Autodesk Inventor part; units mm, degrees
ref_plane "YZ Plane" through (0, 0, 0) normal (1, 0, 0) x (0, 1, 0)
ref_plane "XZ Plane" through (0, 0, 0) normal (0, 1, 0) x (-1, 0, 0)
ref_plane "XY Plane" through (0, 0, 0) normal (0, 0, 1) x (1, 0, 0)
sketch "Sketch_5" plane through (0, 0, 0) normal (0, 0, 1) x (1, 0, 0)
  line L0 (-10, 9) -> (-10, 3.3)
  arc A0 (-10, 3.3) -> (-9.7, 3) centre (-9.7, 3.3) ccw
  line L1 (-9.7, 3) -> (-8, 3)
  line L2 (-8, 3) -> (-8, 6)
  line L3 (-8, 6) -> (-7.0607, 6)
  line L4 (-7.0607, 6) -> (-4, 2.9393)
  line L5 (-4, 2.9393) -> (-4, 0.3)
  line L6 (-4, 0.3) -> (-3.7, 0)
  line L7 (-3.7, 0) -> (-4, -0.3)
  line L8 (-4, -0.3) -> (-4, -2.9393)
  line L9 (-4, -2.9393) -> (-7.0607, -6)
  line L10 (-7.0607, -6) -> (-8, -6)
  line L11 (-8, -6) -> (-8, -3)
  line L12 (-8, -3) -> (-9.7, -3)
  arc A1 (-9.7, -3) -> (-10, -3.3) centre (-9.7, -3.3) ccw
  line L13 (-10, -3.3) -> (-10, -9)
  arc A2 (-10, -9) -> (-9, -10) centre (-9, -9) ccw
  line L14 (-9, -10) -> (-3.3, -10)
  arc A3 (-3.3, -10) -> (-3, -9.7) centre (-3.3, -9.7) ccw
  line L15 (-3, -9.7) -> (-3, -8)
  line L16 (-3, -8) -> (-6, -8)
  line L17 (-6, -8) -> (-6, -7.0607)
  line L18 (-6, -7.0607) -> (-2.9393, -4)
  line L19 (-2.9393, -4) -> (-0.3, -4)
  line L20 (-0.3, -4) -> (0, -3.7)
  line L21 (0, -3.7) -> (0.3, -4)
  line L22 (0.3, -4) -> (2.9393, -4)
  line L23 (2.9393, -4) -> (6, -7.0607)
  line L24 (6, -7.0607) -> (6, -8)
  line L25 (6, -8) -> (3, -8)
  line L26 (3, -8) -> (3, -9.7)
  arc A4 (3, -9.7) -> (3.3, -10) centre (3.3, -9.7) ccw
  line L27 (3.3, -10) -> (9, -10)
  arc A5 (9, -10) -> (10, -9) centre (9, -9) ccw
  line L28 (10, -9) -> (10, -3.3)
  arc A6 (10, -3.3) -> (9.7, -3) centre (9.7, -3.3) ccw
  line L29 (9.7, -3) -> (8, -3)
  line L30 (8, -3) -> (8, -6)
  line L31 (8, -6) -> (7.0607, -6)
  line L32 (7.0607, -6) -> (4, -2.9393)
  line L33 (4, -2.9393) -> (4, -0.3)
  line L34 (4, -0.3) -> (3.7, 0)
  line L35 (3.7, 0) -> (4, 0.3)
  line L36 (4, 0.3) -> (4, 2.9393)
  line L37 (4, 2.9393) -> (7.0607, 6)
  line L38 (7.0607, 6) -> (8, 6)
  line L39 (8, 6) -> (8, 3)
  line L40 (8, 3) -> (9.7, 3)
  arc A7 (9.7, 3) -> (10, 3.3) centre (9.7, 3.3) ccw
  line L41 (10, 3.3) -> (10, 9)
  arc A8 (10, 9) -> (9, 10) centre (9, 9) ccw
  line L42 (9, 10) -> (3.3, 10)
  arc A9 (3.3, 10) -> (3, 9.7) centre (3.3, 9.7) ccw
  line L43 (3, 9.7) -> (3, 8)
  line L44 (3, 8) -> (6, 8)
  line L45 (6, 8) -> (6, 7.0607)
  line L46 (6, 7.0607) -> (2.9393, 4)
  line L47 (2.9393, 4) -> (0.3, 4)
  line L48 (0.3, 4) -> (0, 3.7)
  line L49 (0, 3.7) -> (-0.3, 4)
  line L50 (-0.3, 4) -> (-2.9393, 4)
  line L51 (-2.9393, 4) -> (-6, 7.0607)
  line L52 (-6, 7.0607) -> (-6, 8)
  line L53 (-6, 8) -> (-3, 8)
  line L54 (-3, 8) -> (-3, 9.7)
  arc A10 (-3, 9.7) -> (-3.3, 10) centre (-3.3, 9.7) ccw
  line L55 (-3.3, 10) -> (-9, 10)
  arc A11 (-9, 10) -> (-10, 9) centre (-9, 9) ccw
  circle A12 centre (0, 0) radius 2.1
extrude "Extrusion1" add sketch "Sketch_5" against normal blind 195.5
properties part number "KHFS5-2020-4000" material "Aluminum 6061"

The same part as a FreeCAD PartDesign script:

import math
import FreeCAD as App
import Part
import Sketcher

V = App.Vector

doc = App.newDocument("Part")
body = doc.addObject("PartDesign::Body", "Body")

# Sketch on XY plane
sketch1 = body.newObject("Sketcher::SketchObject", "Sketch")
sketch1.AttachmentSupport = (doc.getObject("XY_Plane"), [""])
sketch1.MapMode = "FlatFace"
sketch1.addGeometry([
    Part.ArcOfCircle(Part.Circle(V(-9, 9, 0), V(0, 0, 1), 1), math.radians(90), math.radians(180)),  # 0
    Part.LineSegment(V(-10, 9, 0), V(-10, 3.3, 0)),  # 1
    Part.ArcOfCircle(Part.Circle(V(-9.7, 3.3, 0), V(0, 0, 1), 0.3), math.radians(180), math.radians(270)),  # 2
    Part.LineSegment(V(-9.7, 3, 0), V(-8, 3, 0)),  # 3
    Part.LineSegment(V(-8, 3, 0), V(-8, 6, 0)),  # 4
    Part.LineSegment(V(-8, 6, 0), V(-7.06, 6, 0)),  # 5
    Part.LineSegment(V(-7.06, 6, 0), V(-4, 2.94, 0)),  # 6
    Part.LineSegment(V(-4, 2.94, 0), V(-4, 0.3, 0)),  # 7
    Part.LineSegment(V(-4, 0.3, 0), V(-3.7, 0, 0)),  # 8
    Part.LineSegment(V(-3.7, 0, 0), V(-4, -0.3, 0)),  # 9
    Part.LineSegment(V(-4, -0.3, 0), V(-4, -2.94, 0)),  # 10
    Part.LineSegment(V(-4, -2.94, 0), V(-7.06, -6, 0)),  # 11
    Part.LineSegment(V(-7.06, -6, 0), V(-8, -6, 0)),  # 12
    Part.LineSegment(V(-8, -6, 0), V(-8, -3, 0)),  # 13
    Part.LineSegment(V(-8, -3, 0), V(-9.7, -3, 0)),  # 14
    Part.ArcOfCircle(Part.Circle(V(-9.7, -3.3, 0), V(0, 0, 1), 0.3), math.radians(90), math.radians(180)),  # 15
    Part.LineSegment(V(-10, -3.3, 0), V(-10, -9, 0)),  # 16
    Part.ArcOfCircle(Part.Circle(V(-9, -9, 0), V(0, 0, 1), 1), math.radians(180), math.radians(270)),  # 17
    Part.LineSegment(V(-9, -10, 0), V(-3.3, -10, 0)),  # 18
    Part.ArcOfCircle(Part.Circle(V(-3.3, -9.7, 0), V(0, 0, 1), 0.3), math.radians(-90), math.radians(0)),  # 19
    Part.LineSegment(V(-3, -9.7, 0), V(-3, -8, 0)),  # 20
    Part.LineSegment(V(-3, -8, 0), V(-6, -8, 0)),  # 21
    Part.LineSegment(V(-6, -8, 0), V(-6, -7.06, 0)),  # 22
    Part.LineSegment(V(-6, -7.06, 0), V(-2.94, -4, 0)),  # 23
    Part.LineSegment(V(-2.94, -4, 0), V(-0.3, -4, 0)),  # 24
    Part.LineSegment(V(-0.3, -4, 0), V(0, -3.7, 0)),  # 25
    Part.LineSegment(V(0, -3.7, 0), V(0.3, -4, 0)),  # 26
    Part.LineSegment(V(0.3, -4, 0), V(2.94, -4, 0)),  # 27
    Part.LineSegment(V(2.94, -4, 0), V(6, -7.06, 0)),  # 28
    Part.LineSegment(V(6, -7.06, 0), V(6, -8, 0)),  # 29
    Part.LineSegment(V(6, -8, 0), V(3, -8, 0)),  # 30
    Part.LineSegment(V(3, -8, 0), V(3, -9.7, 0)),  # 31
    Part.ArcOfCircle(Part.Circle(V(3.3, -9.7, 0), V(0, 0, 1), 0.3), math.radians(180), math.radians(270)),  # 32
    Part.LineSegment(V(3.3, -10, 0), V(9, -10, 0)),  # 33
    Part.ArcOfCircle(Part.Circle(V(9, -9, 0), V(0, 0, 1), 1), math.radians(-90), math.radians(0)),  # 34
    Part.LineSegment(V(10, -9, 0), V(10, -3.3, 0)),  # 35
    Part.ArcOfCircle(Part.Circle(V(9.7, -3.3, 0), V(0, 0, 1), 0.3), math.radians(0), math.radians(90)),  # 36
    Part.LineSegment(V(9.7, -3, 0), V(8, -3, 0)),  # 37
    Part.LineSegment(V(8, -3, 0), V(8, -6, 0)),  # 38
    Part.LineSegment(V(8, -6, 0), V(7.06, -6, 0)),  # 39
    Part.LineSegment(V(7.06, -6, 0), V(4, -2.94, 0)),  # 40
    Part.LineSegment(V(4, -2.94, 0), V(4, -0.3, 0)),  # 41
    Part.LineSegment(V(4, -0.3, 0), V(3.7, 0, 0)),  # 42
    Part.LineSegment(V(3.7, 0, 0), V(4, 0.3, 0)),  # 43
    Part.LineSegment(V(4, 0.3, 0), V(4, 2.94, 0)),  # 44
    Part.LineSegment(V(4, 2.94, 0), V(7.06, 6, 0)),  # 45
    Part.LineSegment(V(7.06, 6, 0), V(8, 6, 0)),  # 46
    Part.LineSegment(V(8, 6, 0), V(8, 3, 0)),  # 47
    Part.LineSegment(V(8, 3, 0), V(9.7, 3, 0)),  # 48
    Part.ArcOfCircle(Part.Circle(V(9.7, 3.3, 0), V(0, 0, 1), 0.3), math.radians(-90), math.radians(0)),  # 49
    Part.LineSegment(V(10, 3.3, 0), V(10, 9, 0)),  # 50
    Part.ArcOfCircle(Part.Circle(V(9, 9, 0), V(0, 0, 1), 1), math.radians(0), math.radians(90)),  # 51
    Part.LineSegment(V(9, 10, 0), V(3.3, 10, 0)),  # 52
    Part.ArcOfCircle(Part.Circle(V(3.3, 9.7, 0), V(0, 0, 1), 0.3), math.radians(90), math.radians(180)),  # 53
    Part.LineSegment(V(3, 9.7, 0), V(3, 8, 0)),  # 54
    Part.LineSegment(V(3, 8, 0), V(6, 8, 0)),  # 55
    Part.LineSegment(V(6, 8, 0), V(6, 7.06, 0)),  # 56
    Part.LineSegment(V(6, 7.06, 0), V(2.94, 4, 0)),  # 57
    Part.LineSegment(V(2.94, 4, 0), V(0.3, 4, 0)),  # 58
    Part.LineSegment(V(0.3, 4, 0), V(0, 3.7, 0)),  # 59
    Part.LineSegment(V(0, 3.7, 0), V(-0.3, 4, 0)),  # 60
    Part.LineSegment(V(-0.3, 4, 0), V(-2.94, 4, 0)),  # 61
    Part.LineSegment(V(-2.94, 4, 0), V(-6, 7.06, 0)),  # 62
    Part.LineSegment(V(-6, 7.06, 0), V(-6, 8, 0)),  # 63
    Part.LineSegment(V(-6, 8, 0), V(-3, 8, 0)),  # 64
    Part.LineSegment(V(-3, 8, 0), V(-3, 9.7, 0)),  # 65
    Part.ArcOfCircle(Part.Circle(V(-3.3, 9.7, 0), V(0, 0, 1), 0.3), math.radians(0), math.radians(90)),  # 66
    Part.LineSegment(V(-3.3, 10, 0), V(-9, 10, 0)),  # 67
    Part.Circle(V(0, 0, 0), V(0, 0, 1), 2.1),  # 68
], False)
sketch1.addConstraint([
    Sketcher.Constraint("Tangent", 0, 2, 1, 1),
    Sketcher.Constraint("Tangent", 1, 2, 2, 1),
    Sketcher.Constraint("Tangent", 2, 2, 3, 1),
    Sketcher.Constraint("Coincident", 3, 2, 4, 1),
    Sketcher.Constraint("Coincident", 4, 2, 5, 1),
    Sketcher.Constraint("Coincident", 5, 2, 6, 1),
    Sketcher.Constraint("Coincident", 6, 2, 7, 1),
    Sketcher.Constraint("Coincident", 7, 2, 8, 1),
    Sketcher.Constraint("Coincident", 8, 2, 9, 1),
    Sketcher.Constraint("Coincident", 9, 2, 10, 1),
    Sketcher.Constraint("Coincident", 10, 2, 11, 1),
    Sketcher.Constraint("Coincident", 11, 2, 12, 1),
    Sketcher.Constraint("Coincident", 12, 2, 13, 1),
    Sketcher.Constraint("Coincident", 13, 2, 14, 1),
    Sketcher.Constraint("Tangent", 14, 2, 15, 1),
    Sketcher.Constraint("Tangent", 15, 2, 16, 1),
    Sketcher.Constraint("Tangent", 16, 2, 17, 1),
    Sketcher.Constraint("Tangent", 17, 2, 18, 1),
    Sketcher.Constraint("Tangent", 18, 2, 19, 1),
    Sketcher.Constraint("Tangent", 19, 2, 20, 1),
    Sketcher.Constraint("Coincident", 20, 2, 21, 1),
    Sketcher.Constraint("Coincident", 21, 2, 22, 1),
    Sketcher.Constraint("Coincident", 22, 2, 23, 1),
    Sketcher.Constraint("Coincident", 23, 2, 24, 1),
    Sketcher.Constraint("Coincident", 24, 2, 25, 1),
    Sketcher.Constraint("Coincident", 25, 2, 26, 1),
    Sketcher.Constraint("Coincident", 26, 2, 27, 1),
    Sketcher.Constraint("Coincident", 27, 2, 28, 1),
    Sketcher.Constraint("Coincident", 28, 2, 29, 1),
    Sketcher.Constraint("Coincident", 29, 2, 30, 1),
    Sketcher.Constraint("Coincident", 30, 2, 31, 1),
    Sketcher.Constraint("Tangent", 31, 2, 32, 1),
    Sketcher.Constraint("Tangent", 32, 2, 33, 1),
    Sketcher.Constraint("Tangent", 33, 2, 34, 1),
    Sketcher.Constraint("Tangent", 34, 2, 35, 1),
    Sketcher.Constraint("Tangent", 35, 2, 36, 1),
    Sketcher.Constraint("Tangent", 36, 2, 37, 1),
    Sketcher.Constraint("Coincident", 37, 2, 38, 1),
    Sketcher.Constraint("Coincident", 38, 2, 39, 1),
    Sketcher.Constraint("Coincident", 39, 2, 40, 1),
    Sketcher.Constraint("Coincident", 40, 2, 41, 1),
    Sketcher.Constraint("Coincident", 41, 2, 42, 1),
    Sketcher.Constraint("Coincident", 42, 2, 43, 1),
    Sketcher.Constraint("Coincident", 43, 2, 44, 1),
    Sketcher.Constraint("Coincident", 44, 2, 45, 1),
    Sketcher.Constraint("Coincident", 45, 2, 46, 1),
    Sketcher.Constraint("Coincident", 46, 2, 47, 1),
    Sketcher.Constraint("Coincident", 47, 2, 48, 1),
    Sketcher.Constraint("Tangent", 48, 2, 49, 1),
    Sketcher.Constraint("Tangent", 49, 2, 50, 1),
    Sketcher.Constraint("Tangent", 50, 2, 51, 1),
    Sketcher.Constraint("Tangent", 51, 2, 52, 1),
    Sketcher.Constraint("Tangent", 52, 2, 53, 1),
    Sketcher.Constraint("Tangent", 53, 2, 54, 1),
    Sketcher.Constraint("Coincident", 54, 2, 55, 1),
    Sketcher.Constraint("Coincident", 55, 2, 56, 1),
    Sketcher.Constraint("Coincident", 56, 2, 57, 1),
    Sketcher.Constraint("Coincident", 57, 2, 58, 1),
    Sketcher.Constraint("Coincident", 58, 2, 59, 1),
    Sketcher.Constraint("Coincident", 59, 2, 60, 1),
    Sketcher.Constraint("Coincident", 60, 2, 61, 1),
    Sketcher.Constraint("Coincident", 61, 2, 62, 1),
    Sketcher.Constraint("Coincident", 62, 2, 63, 1),
    Sketcher.Constraint("Coincident", 63, 2, 64, 1),
    Sketcher.Constraint("Coincident", 64, 2, 65, 1),
    Sketcher.Constraint("Tangent", 65, 2, 66, 1),
    Sketcher.Constraint("Tangent", 66, 2, 67, 1),
    Sketcher.Constraint("Tangent", 67, 2, 0, 1),
    Sketcher.Constraint("Vertical", 1),
    Sketcher.Constraint("Horizontal", 3),
    Sketcher.Constraint("Vertical", 4),
    Sketcher.Constraint("Horizontal", 5),
    Sketcher.Constraint("Vertical", 7),
    Sketcher.Constraint("Vertical", 10),
    Sketcher.Constraint("Horizontal", 12),
    Sketcher.Constraint("Vertical", 13),
    Sketcher.Constraint("Horizontal", 14),
    Sketcher.Constraint("Vertical", 16),
    Sketcher.Constraint("Horizontal", 18),
    Sketcher.Constraint("Vertical", 20),
    Sketcher.Constraint("Horizontal", 21),
    Sketcher.Constraint("Vertical", 22),
    Sketcher.Constraint("Horizontal", 24),
    Sketcher.Constraint("Horizontal", 27),
    Sketcher.Constraint("Vertical", 29),
    Sketcher.Constraint("Horizontal", 30),
    Sketcher.Constraint("Vertical", 31),
    Sketcher.Constraint("Horizontal", 33),
    Sketcher.Constraint("Vertical", 35),
    Sketcher.Constraint("Horizontal", 37),
    Sketcher.Constraint("Vertical", 38),
    Sketcher.Constraint("Horizontal", 39),
    Sketcher.Constraint("Vertical", 41),
    Sketcher.Constraint("Vertical", 44),
    Sketcher.Constraint("Horizontal", 46),
    Sketcher.Constraint("Vertical", 47),
    Sketcher.Constraint("Horizontal", 48),
    Sketcher.Constraint("Vertical", 50),
    Sketcher.Constraint("Horizontal", 52),
    Sketcher.Constraint("Vertical", 54),
    Sketcher.Constraint("Horizontal", 55),
    Sketcher.Constraint("Vertical", 56),
    Sketcher.Constraint("Horizontal", 58),
    Sketcher.Constraint("Horizontal", 61),
    Sketcher.Constraint("Vertical", 63),
    Sketcher.Constraint("Horizontal", 64),
    Sketcher.Constraint("Vertical", 65),
    Sketcher.Constraint("Horizontal", 67),
    Sketcher.Constraint("Coincident", 68, 3, -1, 1),
    Sketcher.Constraint("Equal", 2, 15),
    Sketcher.Constraint("Equal", 0, 17),
    Sketcher.Constraint("Equal", 15, 19),
    Sketcher.Constraint("Equal", 19, 32),
    Sketcher.Constraint("Equal", 17, 34),
    Sketcher.Constraint("Equal", 32, 36),
    Sketcher.Constraint("Equal", 36, 49),
    Sketcher.Constraint("Equal", 34, 51),
    Sketcher.Constraint("Equal", 49, 53),
    Sketcher.Constraint("Equal", 53, 66),
    Sketcher.Constraint("Symmetric", 0, 3, 34, 3, -1, 1),
    Sketcher.Constraint("Symmetric", 15, 3, 49, 3, -1, 1),
    Sketcher.Constraint("Symmetric", 19, 3, 53, 3, -1, 1),
    Sketcher.Constraint("Symmetric", 3, 2, 37, 2, -1, 1),
    Sketcher.Constraint("Symmetric", 5, 2, 39, 2, -1, 1),
    Sketcher.Constraint("Symmetric", 6, 2, 40, 2, -1, 1),
    Sketcher.Constraint("Symmetric", 8, 2, 42, 2, -1, 1),
    Sketcher.Constraint("Symmetric", 9, 2, 43, 2, -1, 1),
    Sketcher.Constraint("Symmetric", 11, 2, 45, 2, -1, 1),
    Sketcher.Constraint("Symmetric", 21, 2, 55, 2, -1, 1),
    Sketcher.Constraint("Symmetric", 23, 2, 57, 2, -1, 1),
    Sketcher.Constraint("Symmetric", 25, 2, 59, 2, -1, 1),
    Sketcher.Constraint("Symmetric", 26, 2, 60, 2, -1, 1),
    Sketcher.Constraint("Symmetric", 28, 2, 62, 2, -1, 1),
    Sketcher.Constraint("Symmetric", 30, 2, 64, 2, -1, 1),
    Sketcher.Constraint("Symmetric", 19, 3, 32, 3, -2),
    Sketcher.Constraint("Symmetric", 15, 3, 36, 3, -2),
    Sketcher.Constraint("Symmetric", 24, 2, 26, 2, -2),
    Sketcher.Constraint("Symmetric", 22, 2, 28, 2, -2),
    Sketcher.Constraint("Symmetric", 12, 2, 38, 2, -2),
    Sketcher.Constraint("Symmetric", 10, 2, 40, 2, -2),
    Sketcher.Constraint("PointOnObject", 8, 2, -1),
    Sketcher.Constraint("PointOnObject", 25, 2, -2),
    Sketcher.Constraint("Parallel", 6, 8),
    Sketcher.Constraint("Perpendicular", 8, 9),
    Sketcher.Constraint("Parallel", 9, 11),
    Sketcher.Constraint("Parallel", 11, 23),
    Sketcher.Constraint("Parallel", 23, 25),
    Sketcher.Constraint("Perpendicular", 25, 26),
    Sketcher.Constraint("Parallel", 26, 28),
    Sketcher.Constraint("Parallel", 40, 42),
    Sketcher.Constraint("Parallel", 43, 45),
    Sketcher.Constraint("Parallel", 45, 57),
    Sketcher.Constraint("Parallel", 57, 59),
    Sketcher.Constraint("Parallel", 60, 62),
    Sketcher.Constraint("Horizontal", 21, 2, 29, 2),
    Sketcher.Constraint("Vertical", 38, 2, 46, 2),
    Sketcher.Constraint("Equal", 67, 1),
    Sketcher.Constraint("Equal", 64, 4),
    Sketcher.Constraint("Equal", 61, 7),
    Sketcher.Constraint("Equal", 48, 20),
    Sketcher.Constraint("Equal", 46, 22),
    Sketcher.Constraint("Equal", 11, 23),
    Sketcher.Constraint("Equal", 9, 25),
    Sketcher.Constraint("Radius", 0, 1.0),
    Sketcher.Constraint("Diameter", 68, 4.2),
    Sketcher.Constraint("Radius", 2, 0.3),
    Sketcher.Constraint("DistanceX", 21, 2, 21, 1, 3.0),
    Sketcher.Constraint("DistanceX", 3, 1, 3, 2, 1.7),
    Sketcher.Constraint("DistanceX", 18, 1, 18, 2, 5.7),
    Sketcher.Constraint("DistanceX", 0, 3, -1, 1, 9.0),
    Sketcher.Constraint("DistanceX", 6, 2, -1, 1, 4.0),
    Sketcher.Constraint("DistanceY", -1, 1, 7, 2, 0.3),
    Sketcher.Constraint("DistanceX", 5, 1, 5, 2, 0.9393),
])
pad1 = body.newObject("PartDesign::Pad", "Pad")
pad1.Profile = sketch1
pad1.Length = 195.5
pad1.Reversed = True

doc.recompute()
